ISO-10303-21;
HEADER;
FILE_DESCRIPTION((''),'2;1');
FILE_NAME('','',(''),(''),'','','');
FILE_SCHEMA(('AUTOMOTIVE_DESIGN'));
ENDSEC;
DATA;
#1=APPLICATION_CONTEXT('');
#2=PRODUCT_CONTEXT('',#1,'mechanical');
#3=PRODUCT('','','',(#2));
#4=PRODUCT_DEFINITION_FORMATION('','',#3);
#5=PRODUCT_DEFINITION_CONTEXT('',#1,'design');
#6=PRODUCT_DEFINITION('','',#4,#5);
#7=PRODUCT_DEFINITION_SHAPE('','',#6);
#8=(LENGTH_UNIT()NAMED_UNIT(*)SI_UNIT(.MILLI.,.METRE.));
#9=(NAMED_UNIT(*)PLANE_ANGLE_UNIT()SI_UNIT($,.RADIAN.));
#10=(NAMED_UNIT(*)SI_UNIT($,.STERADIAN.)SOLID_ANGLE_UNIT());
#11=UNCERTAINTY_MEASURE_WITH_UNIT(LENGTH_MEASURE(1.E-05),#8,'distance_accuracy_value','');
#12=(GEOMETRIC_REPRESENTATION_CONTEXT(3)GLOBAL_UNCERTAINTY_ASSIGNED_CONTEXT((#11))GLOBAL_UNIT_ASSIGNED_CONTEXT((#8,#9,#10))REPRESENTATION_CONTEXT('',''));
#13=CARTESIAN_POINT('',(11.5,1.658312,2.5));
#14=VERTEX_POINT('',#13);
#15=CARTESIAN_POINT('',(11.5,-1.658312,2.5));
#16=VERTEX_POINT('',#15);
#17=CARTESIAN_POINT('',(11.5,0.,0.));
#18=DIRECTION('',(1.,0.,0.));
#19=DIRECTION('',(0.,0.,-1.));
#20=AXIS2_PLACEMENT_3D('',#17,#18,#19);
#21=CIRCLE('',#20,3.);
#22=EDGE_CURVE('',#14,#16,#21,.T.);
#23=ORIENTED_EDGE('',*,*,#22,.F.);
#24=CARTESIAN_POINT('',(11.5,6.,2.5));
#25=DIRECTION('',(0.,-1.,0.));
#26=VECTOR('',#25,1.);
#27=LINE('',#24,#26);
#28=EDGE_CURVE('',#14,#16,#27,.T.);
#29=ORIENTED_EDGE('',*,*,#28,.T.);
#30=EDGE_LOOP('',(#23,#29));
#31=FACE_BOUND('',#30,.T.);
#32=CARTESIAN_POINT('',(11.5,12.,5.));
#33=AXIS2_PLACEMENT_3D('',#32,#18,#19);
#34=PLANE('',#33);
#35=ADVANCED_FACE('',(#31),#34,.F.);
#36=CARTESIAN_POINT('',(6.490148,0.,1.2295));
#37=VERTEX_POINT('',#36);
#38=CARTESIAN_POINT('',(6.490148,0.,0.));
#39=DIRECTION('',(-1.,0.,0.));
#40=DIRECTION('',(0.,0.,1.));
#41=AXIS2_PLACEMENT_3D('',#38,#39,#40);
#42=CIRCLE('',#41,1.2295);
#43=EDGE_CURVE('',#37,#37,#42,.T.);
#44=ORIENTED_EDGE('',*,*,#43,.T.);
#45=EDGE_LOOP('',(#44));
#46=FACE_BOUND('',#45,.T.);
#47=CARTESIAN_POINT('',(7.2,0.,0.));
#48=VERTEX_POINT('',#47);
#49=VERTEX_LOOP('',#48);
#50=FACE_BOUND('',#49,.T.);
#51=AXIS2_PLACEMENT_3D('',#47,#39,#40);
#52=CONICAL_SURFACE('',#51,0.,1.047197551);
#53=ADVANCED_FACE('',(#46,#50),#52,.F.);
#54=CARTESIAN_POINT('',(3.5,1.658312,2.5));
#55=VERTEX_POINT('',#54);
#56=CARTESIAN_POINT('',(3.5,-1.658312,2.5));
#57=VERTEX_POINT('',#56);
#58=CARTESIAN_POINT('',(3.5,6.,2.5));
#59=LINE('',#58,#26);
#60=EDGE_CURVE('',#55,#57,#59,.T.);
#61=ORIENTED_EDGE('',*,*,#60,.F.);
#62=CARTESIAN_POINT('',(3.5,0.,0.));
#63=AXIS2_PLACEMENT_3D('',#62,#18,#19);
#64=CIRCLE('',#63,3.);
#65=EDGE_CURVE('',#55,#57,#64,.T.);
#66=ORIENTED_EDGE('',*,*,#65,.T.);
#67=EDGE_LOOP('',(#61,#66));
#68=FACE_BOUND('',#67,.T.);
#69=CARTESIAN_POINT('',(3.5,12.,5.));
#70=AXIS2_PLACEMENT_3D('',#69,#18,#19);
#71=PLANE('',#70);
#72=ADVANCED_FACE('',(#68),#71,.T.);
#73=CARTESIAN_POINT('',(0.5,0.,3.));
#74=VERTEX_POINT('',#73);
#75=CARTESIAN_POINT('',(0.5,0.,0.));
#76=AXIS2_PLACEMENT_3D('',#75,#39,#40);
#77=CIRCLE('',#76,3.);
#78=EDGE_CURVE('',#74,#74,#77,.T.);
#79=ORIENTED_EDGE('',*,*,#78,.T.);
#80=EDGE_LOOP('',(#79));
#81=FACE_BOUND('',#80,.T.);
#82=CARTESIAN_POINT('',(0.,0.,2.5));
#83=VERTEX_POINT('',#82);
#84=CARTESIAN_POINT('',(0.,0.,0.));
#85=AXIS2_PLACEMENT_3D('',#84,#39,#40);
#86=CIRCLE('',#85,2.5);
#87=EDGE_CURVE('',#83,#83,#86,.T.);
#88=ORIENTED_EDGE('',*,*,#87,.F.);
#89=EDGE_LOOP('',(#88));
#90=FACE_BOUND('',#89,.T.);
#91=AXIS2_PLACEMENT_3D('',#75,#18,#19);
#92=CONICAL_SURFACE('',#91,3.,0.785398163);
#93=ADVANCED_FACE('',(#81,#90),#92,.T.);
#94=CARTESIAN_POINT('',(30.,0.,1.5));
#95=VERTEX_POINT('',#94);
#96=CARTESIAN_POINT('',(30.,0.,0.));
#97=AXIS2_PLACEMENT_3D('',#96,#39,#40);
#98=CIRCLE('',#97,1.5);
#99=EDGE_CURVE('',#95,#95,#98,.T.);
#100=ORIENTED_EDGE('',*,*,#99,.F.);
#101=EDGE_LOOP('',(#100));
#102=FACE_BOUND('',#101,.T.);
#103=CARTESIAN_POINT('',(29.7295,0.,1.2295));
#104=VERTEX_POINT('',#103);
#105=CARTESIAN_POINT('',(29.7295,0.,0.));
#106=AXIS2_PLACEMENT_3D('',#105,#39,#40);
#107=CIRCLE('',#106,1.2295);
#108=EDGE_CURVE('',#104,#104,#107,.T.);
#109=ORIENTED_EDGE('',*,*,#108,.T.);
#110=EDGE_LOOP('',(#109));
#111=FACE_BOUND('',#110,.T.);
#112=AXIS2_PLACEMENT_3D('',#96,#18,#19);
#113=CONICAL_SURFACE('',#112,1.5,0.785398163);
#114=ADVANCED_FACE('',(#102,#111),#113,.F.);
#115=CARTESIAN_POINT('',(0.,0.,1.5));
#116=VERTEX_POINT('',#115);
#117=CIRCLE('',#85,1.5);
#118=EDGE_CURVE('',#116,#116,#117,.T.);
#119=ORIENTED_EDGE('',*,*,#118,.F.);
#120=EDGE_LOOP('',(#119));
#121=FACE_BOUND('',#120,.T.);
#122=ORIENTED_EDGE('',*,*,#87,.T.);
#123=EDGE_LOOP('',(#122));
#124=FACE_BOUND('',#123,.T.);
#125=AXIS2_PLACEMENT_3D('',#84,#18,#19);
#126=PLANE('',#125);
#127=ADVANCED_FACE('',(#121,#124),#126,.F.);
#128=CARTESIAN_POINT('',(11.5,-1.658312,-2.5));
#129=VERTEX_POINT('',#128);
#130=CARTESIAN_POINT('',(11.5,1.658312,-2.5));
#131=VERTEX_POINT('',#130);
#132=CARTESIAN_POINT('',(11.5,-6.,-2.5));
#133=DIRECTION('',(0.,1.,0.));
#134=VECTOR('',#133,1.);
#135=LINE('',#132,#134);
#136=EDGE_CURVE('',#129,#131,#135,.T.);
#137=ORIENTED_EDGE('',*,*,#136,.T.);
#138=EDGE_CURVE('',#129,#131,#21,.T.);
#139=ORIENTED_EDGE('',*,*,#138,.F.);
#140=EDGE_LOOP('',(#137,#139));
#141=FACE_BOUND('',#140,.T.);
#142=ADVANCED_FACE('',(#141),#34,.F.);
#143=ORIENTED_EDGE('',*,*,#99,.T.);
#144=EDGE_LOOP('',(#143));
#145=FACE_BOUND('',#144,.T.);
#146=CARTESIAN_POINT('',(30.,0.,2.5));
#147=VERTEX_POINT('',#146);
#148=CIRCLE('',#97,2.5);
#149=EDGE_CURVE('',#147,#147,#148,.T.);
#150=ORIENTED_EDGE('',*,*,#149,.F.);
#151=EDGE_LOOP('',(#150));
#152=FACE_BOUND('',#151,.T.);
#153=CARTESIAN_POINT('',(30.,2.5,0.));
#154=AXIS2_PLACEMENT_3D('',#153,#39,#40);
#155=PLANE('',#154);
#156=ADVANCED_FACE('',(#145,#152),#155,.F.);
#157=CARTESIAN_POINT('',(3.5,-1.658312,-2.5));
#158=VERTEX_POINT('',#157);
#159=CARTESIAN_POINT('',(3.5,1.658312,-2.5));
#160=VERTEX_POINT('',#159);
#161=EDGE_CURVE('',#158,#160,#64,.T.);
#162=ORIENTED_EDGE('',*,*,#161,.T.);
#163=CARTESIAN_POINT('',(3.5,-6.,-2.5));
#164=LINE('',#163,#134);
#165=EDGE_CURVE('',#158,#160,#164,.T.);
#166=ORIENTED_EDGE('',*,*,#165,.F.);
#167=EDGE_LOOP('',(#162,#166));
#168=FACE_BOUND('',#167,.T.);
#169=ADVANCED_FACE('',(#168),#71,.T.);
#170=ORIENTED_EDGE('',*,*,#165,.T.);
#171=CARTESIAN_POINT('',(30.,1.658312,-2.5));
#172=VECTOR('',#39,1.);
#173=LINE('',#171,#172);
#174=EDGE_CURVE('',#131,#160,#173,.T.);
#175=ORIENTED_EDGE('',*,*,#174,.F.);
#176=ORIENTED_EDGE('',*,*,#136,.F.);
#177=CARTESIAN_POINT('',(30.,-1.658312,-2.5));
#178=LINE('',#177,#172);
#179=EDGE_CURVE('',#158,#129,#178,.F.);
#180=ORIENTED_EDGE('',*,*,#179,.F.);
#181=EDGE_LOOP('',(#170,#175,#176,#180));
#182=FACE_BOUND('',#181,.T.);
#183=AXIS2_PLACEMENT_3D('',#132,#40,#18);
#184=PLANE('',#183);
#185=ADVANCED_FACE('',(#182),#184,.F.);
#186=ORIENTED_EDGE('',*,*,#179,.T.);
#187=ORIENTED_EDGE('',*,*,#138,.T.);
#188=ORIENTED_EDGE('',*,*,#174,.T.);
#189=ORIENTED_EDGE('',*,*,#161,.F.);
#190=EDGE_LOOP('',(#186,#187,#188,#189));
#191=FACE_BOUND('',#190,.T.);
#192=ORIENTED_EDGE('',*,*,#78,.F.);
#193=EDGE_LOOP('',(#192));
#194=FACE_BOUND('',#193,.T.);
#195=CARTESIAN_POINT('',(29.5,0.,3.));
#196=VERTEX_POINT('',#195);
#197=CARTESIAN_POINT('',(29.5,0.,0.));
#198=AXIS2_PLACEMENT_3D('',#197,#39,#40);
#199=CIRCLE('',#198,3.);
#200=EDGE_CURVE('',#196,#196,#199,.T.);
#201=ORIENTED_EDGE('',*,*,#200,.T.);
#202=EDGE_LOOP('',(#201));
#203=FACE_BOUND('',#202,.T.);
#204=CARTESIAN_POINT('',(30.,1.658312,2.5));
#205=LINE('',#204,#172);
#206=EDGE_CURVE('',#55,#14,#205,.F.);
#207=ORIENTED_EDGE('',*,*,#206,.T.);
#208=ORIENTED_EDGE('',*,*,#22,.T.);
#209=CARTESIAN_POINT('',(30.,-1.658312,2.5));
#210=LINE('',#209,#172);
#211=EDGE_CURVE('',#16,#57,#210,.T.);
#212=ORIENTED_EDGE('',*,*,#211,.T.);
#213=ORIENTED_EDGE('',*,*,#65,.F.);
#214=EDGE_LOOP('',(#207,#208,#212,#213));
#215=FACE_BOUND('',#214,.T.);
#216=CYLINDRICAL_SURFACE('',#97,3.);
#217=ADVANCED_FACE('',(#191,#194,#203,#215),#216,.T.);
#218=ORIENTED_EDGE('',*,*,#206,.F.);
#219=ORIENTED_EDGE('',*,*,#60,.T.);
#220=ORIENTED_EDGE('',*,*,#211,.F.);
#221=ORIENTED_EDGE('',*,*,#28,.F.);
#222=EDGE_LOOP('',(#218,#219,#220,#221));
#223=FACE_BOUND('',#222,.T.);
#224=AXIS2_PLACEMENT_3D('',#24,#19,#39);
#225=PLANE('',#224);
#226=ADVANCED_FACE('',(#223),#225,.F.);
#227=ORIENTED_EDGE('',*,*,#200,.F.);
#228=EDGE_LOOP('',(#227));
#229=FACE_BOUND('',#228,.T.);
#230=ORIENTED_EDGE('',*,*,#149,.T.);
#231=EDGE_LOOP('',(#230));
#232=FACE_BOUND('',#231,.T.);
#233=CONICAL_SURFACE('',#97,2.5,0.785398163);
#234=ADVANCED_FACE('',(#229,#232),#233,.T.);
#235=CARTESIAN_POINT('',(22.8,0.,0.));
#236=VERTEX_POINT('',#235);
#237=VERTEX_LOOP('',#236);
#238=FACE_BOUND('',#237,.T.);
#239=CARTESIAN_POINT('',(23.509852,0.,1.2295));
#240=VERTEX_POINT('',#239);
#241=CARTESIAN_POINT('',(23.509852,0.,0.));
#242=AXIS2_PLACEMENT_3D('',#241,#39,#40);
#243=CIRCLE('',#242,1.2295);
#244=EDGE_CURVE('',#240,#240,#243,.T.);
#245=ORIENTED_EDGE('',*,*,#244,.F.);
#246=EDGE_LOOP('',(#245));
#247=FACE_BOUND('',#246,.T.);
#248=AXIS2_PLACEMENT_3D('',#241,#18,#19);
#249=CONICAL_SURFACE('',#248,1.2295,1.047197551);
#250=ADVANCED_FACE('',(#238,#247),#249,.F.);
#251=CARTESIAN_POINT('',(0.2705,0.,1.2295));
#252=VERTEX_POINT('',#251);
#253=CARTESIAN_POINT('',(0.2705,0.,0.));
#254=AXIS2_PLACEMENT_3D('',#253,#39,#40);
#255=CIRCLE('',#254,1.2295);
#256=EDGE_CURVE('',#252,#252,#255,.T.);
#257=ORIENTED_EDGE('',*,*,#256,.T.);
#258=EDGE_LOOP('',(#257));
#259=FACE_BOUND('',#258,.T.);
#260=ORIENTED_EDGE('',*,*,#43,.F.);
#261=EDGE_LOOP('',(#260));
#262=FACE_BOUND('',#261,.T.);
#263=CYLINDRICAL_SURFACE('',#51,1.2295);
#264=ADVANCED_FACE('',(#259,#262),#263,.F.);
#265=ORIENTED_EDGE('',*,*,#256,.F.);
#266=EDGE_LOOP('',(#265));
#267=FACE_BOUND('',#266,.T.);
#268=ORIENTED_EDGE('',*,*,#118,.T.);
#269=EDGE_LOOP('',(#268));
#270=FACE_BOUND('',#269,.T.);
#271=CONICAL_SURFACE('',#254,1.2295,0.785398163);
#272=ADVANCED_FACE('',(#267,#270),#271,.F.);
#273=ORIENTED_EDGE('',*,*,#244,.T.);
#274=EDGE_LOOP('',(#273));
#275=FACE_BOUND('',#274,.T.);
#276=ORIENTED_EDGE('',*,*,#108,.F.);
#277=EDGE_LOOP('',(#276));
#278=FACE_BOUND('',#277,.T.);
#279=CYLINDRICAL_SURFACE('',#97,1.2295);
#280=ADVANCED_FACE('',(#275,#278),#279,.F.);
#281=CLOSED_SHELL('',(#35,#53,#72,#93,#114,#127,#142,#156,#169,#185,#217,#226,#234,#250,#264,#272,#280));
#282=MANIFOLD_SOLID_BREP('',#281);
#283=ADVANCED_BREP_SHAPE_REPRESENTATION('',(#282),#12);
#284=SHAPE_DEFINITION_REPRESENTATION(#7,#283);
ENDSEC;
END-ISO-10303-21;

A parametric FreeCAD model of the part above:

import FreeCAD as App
import Part
import Sketcher

V = App.Vector
Q = App.Units.Quantity

doc = App.newDocument("Part")
body = doc.addObject("PartDesign::Body", "Body")

sketch1 = body.newObject("Sketcher::SketchObject", "Sketch")
sketch1.AttachmentSupport = (doc.getObject("XY_Plane"), [""])
sketch1.MapMode = "FlatFace"
sketch1.addGeometry(Part.LineSegment(V(0, 2.5, 0), V(0, 0, 0)), False)
sketch1.addGeometry(Part.LineSegment(V(0, 0, 0), V(30, 0, 0)), False)
sketch1.addGeometry(Part.LineSegment(V(30, 0, 0), V(30, 2.5, 0)), False)
sketch1.addGeometry(Part.LineSegment(V(30, 2.5, 0), V(29.5, 3, 0)), False)
sketch1.addGeometry(Part.LineSegment(V(29.5, 3, 0), V(0.5, 3, 0)), False)
sketch1.addGeometry(Part.LineSegment(V(0.5, 3, 0), V(0, 2.5, 0)), False)
sketch1.addConstraint(Sketcher.Constraint("Coincident", 0, 2, 1, 1))
sketch1.addConstraint(Sketcher.Constraint("Coincident", 1, 2, 2, 1))
sketch1.addConstraint(Sketcher.Constraint("Coincident", 2, 2, 3, 1))
sketch1.addConstraint(Sketcher.Constraint("Coincident", 3, 2, 4, 1))
sketch1.addConstraint(Sketcher.Constraint("Coincident", 4, 2, 5, 1))
sketch1.addConstraint(Sketcher.Constraint("Coincident", 5, 2, 0, 1))
sketch1.addConstraint(Sketcher.Constraint("Vertical", 0))
sketch1.addConstraint(Sketcher.Constraint("Horizontal", 1))
sketch1.addConstraint(Sketcher.Constraint("Vertical", 2))
sketch1.addConstraint(Sketcher.Constraint("Horizontal", 4))
sketch1.addConstraint(Sketcher.Constraint("Coincident", 0, 2, -1, 1))
sketch1.addConstraint(Sketcher.Constraint("Perpendicular", 3, 5))
sketch1.addConstraint(Sketcher.Constraint("Horizontal", 2, 2, 5, 2))
sketch1.addConstraint(Sketcher.Constraint("Equal", 3, 5))
sketch1.addConstraint(Sketcher.Constraint("DistanceX", 1, 1, 1, 2, Q("30 mm")))
sketch1.addConstraint(Sketcher.Constraint("DistanceX", 4, 2, 4, 1, Q("29 mm")))
sketch1.addConstraint(Sketcher.Constraint("DistanceY", 0, 2, 0, 1, Q("2.5 mm")))
revolution = body.newObject("PartDesign::Revolution", "Revolution")
revolution.Profile = sketch1
revolution.ReferenceAxis = (sketch1, ["H_Axis"])
revolution.Angle = 360

sketch2 = body.newObject("Sketcher::SketchObject", "Sketch001")
sketch2.AttachmentSupport = (doc.getObject("XY_Plane"), [""])
sketch2.MapMode = "FlatFace"
sketch2.addGeometry(Part.LineSegment(V(0, 1.5, 0), V(0, 0, 0)), False)
sketch2.addGeometry(Part.LineSegment(V(0, 0, 0), V(7.2, 0, 0)), False)
sketch2.addGeometry(Part.LineSegment(V(7.2, 0, 0), V(6.49, 1.23, 0)), False)
sketch2.addGeometry(Part.LineSegment(V(6.49, 1.23, 0), V(0.27, 1.23, 0)), False)
sketch2.addGeometry(Part.LineSegment(V(0.27, 1.23, 0), V(0, 1.5, 0)), False)
sketch2.addConstraint(Sketcher.Constraint("Coincident", 0, 2, 1, 1))
sketch2.addConstraint(Sketcher.Constraint("Coincident", 1, 2, 2, 1))
sketch2.addConstraint(Sketcher.Constraint("Coincident", 2, 2, 3, 1))
sketch2.addConstraint(Sketcher.Constraint("Coincident", 3, 2, 4, 1))
sketch2.addConstraint(Sketcher.Constraint("Coincident", 4, 2, 0, 1))
sketch2.addConstraint(Sketcher.Constraint("Vertical", 0))
sketch2.addConstraint(Sketcher.Constraint("Horizontal", 1))
sketch2.addConstraint(Sketcher.Constraint("Horizontal", 3))
sketch2.addConstraint(Sketcher.Constraint("Coincident", 0, 2, -1, 1))
sketch2.addConstraint(Sketcher.Constraint("Angle", 2, Q("120 deg")))
sketch2.addConstraint(Sketcher.Constraint("Angle", 4, Q("135 deg")))
sketch2.addConstraint(Sketcher.Constraint("DistanceX", 1, 1, 1, 2, Q("7.2 mm")))
sketch2.addConstraint(Sketcher.Constraint("DistanceY", 0, 2, 0, 1, Q("1.5 mm")))
sketch2.addConstraint(Sketcher.Constraint("DistanceY", -1, 1, 2, 2, Q("1.2295 mm")))
groove = body.newObject("PartDesign::Groove", "Groove")
groove.Profile = sketch2
groove.ReferenceAxis = (sketch2, ["H_Axis"])
groove.Angle = 360

sketch3 = body.newObject("Sketcher::SketchObject", "Sketch002")
sketch3.AttachmentSupport = (doc.getObject("XY_Plane"), [""])
sketch3.MapMode = "FlatFace"
sketch3.addGeometry(Part.LineSegment(V(23.51, 1.23, 0), V(22.8, 0, 0)), False)
sketch3.addGeometry(Part.LineSegment(V(22.8, 0, 0), V(30, 0, 0)), False)
sketch3.addGeometry(Part.LineSegment(V(30, 0, 0), V(30, 1.5, 0)), False)
sketch3.addGeometry(Part.LineSegment(V(30, 1.5, 0), V(29.73, 1.23, 0)), False)
sketch3.addGeometry(Part.LineSegment(V(29.73, 1.23, 0), V(23.51, 1.23, 0)), False)
sketch3.addConstraint(Sketcher.Constraint("Coincident", 0, 2, 1, 1))
sketch3.addConstraint(Sketcher.Constraint("Coincident", 1, 2, 2, 1))
sketch3.addConstraint(Sketcher.Constraint("Coincident", 2, 2, 3, 1))
sketch3.addConstraint(Sketcher.Constraint("Coincident", 3, 2, 4, 1))
sketch3.addConstraint(Sketcher.Constraint("Coincident", 4, 2, 0, 1))
sketch3.addConstraint(Sketcher.Constraint("Horizontal", 1))
sketch3.addConstraint(Sketcher.Constraint("Vertical", 2))
sketch3.addConstraint(Sketcher.Constraint("Horizontal", 4))
sketch3.addConstraint(Sketcher.Constraint("PointOnObject", 0, 2, -1))
sketch3.addConstraint(Sketcher.Constraint("Angle", 0, Q("-120 deg")))
sketch3.addConstraint(Sketcher.Constraint("Angle", 3, Q("-135 deg")))
sketch3.addConstraint(Sketcher.Constraint("DistanceX", 1, 1, 1, 2, Q("7.2 mm")))
sketch3.addConstraint(Sketcher.Constraint("DistanceY", 2, 1, 2, 2, Q("1.5 mm")))
sketch3.addConstraint(Sketcher.Constraint("DistanceX", -1, 1, 1, 2, Q("30 mm")))
sketch3.addConstraint(Sketcher.Constraint("DistanceX", -1, 1, 3, 2, Q("29.7295 mm")))
groove2 = body.newObject("PartDesign::Groove", "Groove001")
groove2.Profile = sketch3
groove2.ReferenceAxis = (sketch3, ["H_Axis"])
groove2.Angle = 360

sketch4 = body.newObject("Sketcher::SketchObject", "Sketch003")
sketch4.AttachmentSupport = (doc.getObject("YZ_Plane"), [""])
sketch4.MapMode = "FlatFace"
sketch4.AttachmentOffset = App.Placement(V(0, 0, 3.5), App.Rotation())
sketch4.addGeometry(Part.LineSegment(V(12, 5, 0), V(-12, 5, 0)), False)
sketch4.addGeometry(Part.LineSegment(V(-12, 5, 0), V(-12, -5, 0)), False)
sketch4.addGeometry(Part.LineSegment(V(-12, -5, 0), V(12, -5, 0)), False)
sketch4.addGeometry(Part.LineSegment(V(12, -5, 0), V(12, 5, 0)), False)
sketch4.addGeometry(Part.LineSegment(V(-6, -2, 0), V(-6, 2, 0)), False)
sketch4.addGeometry(Part.LineSegment(V(-6, 2, 0), V(6, 2, 0)), False)
sketch4.addGeometry(Part.LineSegment(V(6, 2, 0), V(6, -2, 0)), False)
sketch4.addGeometry(Part.LineSegment(V(6, -2, 0), V(-6, -2, 0)), False)
sketch4.addConstraint(Sketcher.Constraint("Coincident", 0, 2, 1, 1))
sketch4.addConstraint(Sketcher.Constraint("Coincident", 1, 2, 2, 1))
sketch4.addConstraint(Sketcher.Constraint("Coincident", 2, 2, 3, 1))
sketch4.addConstraint(Sketcher.Constraint("Coincident", 3, 2, 0, 1))
sketch4.addConstraint(Sketcher.Constraint("Coincident", 4, 2, 5, 1))
sketch4.addConstraint(Sketcher.Constraint("Coincident", 5, 2, 6, 1))
sketch4.addConstraint(Sketcher.Constraint("Coincident", 6, 2, 7, 1))
sketch4.addConstraint(Sketcher.Constraint("Coincident", 7, 2, 4, 1))
sketch4.addConstraint(Sketcher.Constraint("Horizontal", 0))
sketch4.addConstraint(Sketcher.Constraint("Vertical", 1))
sketch4.addConstraint(Sketcher.Constraint("Horizontal", 2))
sketch4.addConstraint(Sketcher.Constraint("Vertical", 3))
sketch4.addConstraint(Sketcher.Constraint("Vertical", 4))
sketch4.addConstraint(Sketcher.Constraint("Horizontal", 5))
sketch4.addConstraint(Sketcher.Constraint("Vertical", 6))
sketch4.addConstraint(Sketcher.Constraint("Horizontal", 7))
sketch4.addConstraint(Sketcher.Constraint("Symmetric", 0, 2, 2, 2, -1, 1))
sketch4.addConstraint(Sketcher.Constraint("Symmetric", 4, 2, 6, 2, -1, 1))
sketch4.addConstraint(Sketcher.Constraint("DistanceX", 0, 2, 0, 1, Q("24 mm")))
sketch4.addConstraint(Sketcher.Constraint("DistanceX", 5, 1, 5, 2, Q("12 mm")))
sketch4.addConstraint(Sketcher.Constraint("DistanceY", 1, 2, 1, 1, Q("10 mm")))
sketch4.addConstraint(Sketcher.Constraint("DistanceY", 4, 1, 4, 2, Q("5 mm")))
pocket1 = body.newObject("PartDesign::Pocket", "Pocket")
pocket1.Profile = sketch4
pocket1.Length = 8
pocket1.Reversed = True

doc.recompute()
